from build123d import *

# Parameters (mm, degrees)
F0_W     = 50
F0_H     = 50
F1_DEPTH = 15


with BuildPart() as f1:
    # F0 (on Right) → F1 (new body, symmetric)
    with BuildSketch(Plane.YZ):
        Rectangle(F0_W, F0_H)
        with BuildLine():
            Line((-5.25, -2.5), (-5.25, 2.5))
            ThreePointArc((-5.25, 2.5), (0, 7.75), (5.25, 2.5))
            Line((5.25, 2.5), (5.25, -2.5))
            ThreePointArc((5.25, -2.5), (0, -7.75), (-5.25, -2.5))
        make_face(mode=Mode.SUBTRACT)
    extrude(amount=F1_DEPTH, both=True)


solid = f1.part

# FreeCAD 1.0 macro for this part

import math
import FreeCAD as App
import Part
import Sketcher

doc = App.newDocument("Part")
body = doc.addObject("PartDesign::Body", "Body")

# Sketch on YZ plane
sketch1 = body.newObject("Sketcher::SketchObject", "Sketch")
sketch1.AttachmentSupport = (doc.getObject("YZ_Plane"), [""])
sketch1.MapMode = "FlatFace"
sketch1.addGeometry(Part.LineSegment(App.Vector(-25, 25, 0), App.Vector(-25, -25, 0)), False)
sketch1.addGeometry(Part.LineSegment(App.Vector(-25, -25, 0), App.Vector(25, -25, 0)), False)
sketch1.addGeometry(Part.LineSegment(App.Vector(25, -25, 0), App.Vector(25, 25, 0)), False)
sketch1.addGeometry(Part.LineSegment(App.Vector(25, 25, 0), App.Vector(-25, 25, 0)), False)
sketch1.addGeometry(Part.ArcOfCircle(Part.Circle(App.Vector(0, -2, 0), App.Vector(0, 0, 1), 5), math.radians(180), math.radians(360)), False)
sketch1.addGeometry(Part.LineSegment(App.Vector(-5, -2, 0), App.Vector(-5, 2, 0)), False)
sketch1.addGeometry(Part.ArcOfCircle(Part.Circle(App.Vector(0, 2, 0), App.Vector(0, 0, 1), 5), math.radians(0), math.radians(180)), False)
sketch1.addGeometry(Part.LineSegment(App.Vector(5, 2, 0), App.Vector(5, -2, 0)), False)
sketch1.addConstraint(Sketcher.Constraint("Coincident", 0, 2, 1, 1))
sketch1.addConstraint(Sketcher.Constraint("Coincident", 1, 2, 2, 1))
sketch1.addConstraint(Sketcher.Constraint("Coincident", 2, 2, 3, 1))
sketch1.addConstraint(Sketcher.Constraint("Coincident", 3, 2, 0, 1))
sketch1.addConstraint(Sketcher.Constraint("Tangent", 4, 1, 5, 1))
sketch1.addConstraint(Sketcher.Constraint("Tangent", 5, 2, 6, 2))
sketch1.addConstraint(Sketcher.Constraint("Tangent", 6, 1, 7, 1))
sketch1.addConstraint(Sketcher.Constraint("Tangent", 7, 2, 4, 2))
sketch1.addConstraint(Sketcher.Constraint("Vertical", 0))
sketch1.addConstraint(Sketcher.Constraint("Horizontal", 1))
sketch1.addConstraint(Sketcher.Constraint("Vertical", 2))
sketch1.addConstraint(Sketcher.Constraint("Horizontal", 3))
sketch1.addConstraint(Sketcher.Constraint("Vertical", 5))
sketch1.addConstraint(Sketcher.Constraint("Vertical", 7))
sketch1.addConstraint(Sketcher.Constraint("Symmetric", 4, 3, 6, 3, -1, 1))
sketch1.addConstraint(Sketcher.Constraint("Symmetric", 0, 2, 2, 2, -1, 1))
sketch1.addConstraint(Sketcher.Constraint("Equal", 3, 0))
sketch1.addConstraint(Sketcher.Constraint("DistanceX", 1, 1, 1, 2, 50.0))
sketch1.addConstraint(Sketcher.Constraint("DistanceY", 5, 1, 5, 2, 5.0))
sketch1.addConstraint(Sketcher.Constraint("Radius", 4, 5.25))
pad1 = body.newObject("PartDesign::Pad", "Pad")
pad1.Profile = sketch1
pad1.Length = 30
pad1.Midplane = True

doc.recompute()
